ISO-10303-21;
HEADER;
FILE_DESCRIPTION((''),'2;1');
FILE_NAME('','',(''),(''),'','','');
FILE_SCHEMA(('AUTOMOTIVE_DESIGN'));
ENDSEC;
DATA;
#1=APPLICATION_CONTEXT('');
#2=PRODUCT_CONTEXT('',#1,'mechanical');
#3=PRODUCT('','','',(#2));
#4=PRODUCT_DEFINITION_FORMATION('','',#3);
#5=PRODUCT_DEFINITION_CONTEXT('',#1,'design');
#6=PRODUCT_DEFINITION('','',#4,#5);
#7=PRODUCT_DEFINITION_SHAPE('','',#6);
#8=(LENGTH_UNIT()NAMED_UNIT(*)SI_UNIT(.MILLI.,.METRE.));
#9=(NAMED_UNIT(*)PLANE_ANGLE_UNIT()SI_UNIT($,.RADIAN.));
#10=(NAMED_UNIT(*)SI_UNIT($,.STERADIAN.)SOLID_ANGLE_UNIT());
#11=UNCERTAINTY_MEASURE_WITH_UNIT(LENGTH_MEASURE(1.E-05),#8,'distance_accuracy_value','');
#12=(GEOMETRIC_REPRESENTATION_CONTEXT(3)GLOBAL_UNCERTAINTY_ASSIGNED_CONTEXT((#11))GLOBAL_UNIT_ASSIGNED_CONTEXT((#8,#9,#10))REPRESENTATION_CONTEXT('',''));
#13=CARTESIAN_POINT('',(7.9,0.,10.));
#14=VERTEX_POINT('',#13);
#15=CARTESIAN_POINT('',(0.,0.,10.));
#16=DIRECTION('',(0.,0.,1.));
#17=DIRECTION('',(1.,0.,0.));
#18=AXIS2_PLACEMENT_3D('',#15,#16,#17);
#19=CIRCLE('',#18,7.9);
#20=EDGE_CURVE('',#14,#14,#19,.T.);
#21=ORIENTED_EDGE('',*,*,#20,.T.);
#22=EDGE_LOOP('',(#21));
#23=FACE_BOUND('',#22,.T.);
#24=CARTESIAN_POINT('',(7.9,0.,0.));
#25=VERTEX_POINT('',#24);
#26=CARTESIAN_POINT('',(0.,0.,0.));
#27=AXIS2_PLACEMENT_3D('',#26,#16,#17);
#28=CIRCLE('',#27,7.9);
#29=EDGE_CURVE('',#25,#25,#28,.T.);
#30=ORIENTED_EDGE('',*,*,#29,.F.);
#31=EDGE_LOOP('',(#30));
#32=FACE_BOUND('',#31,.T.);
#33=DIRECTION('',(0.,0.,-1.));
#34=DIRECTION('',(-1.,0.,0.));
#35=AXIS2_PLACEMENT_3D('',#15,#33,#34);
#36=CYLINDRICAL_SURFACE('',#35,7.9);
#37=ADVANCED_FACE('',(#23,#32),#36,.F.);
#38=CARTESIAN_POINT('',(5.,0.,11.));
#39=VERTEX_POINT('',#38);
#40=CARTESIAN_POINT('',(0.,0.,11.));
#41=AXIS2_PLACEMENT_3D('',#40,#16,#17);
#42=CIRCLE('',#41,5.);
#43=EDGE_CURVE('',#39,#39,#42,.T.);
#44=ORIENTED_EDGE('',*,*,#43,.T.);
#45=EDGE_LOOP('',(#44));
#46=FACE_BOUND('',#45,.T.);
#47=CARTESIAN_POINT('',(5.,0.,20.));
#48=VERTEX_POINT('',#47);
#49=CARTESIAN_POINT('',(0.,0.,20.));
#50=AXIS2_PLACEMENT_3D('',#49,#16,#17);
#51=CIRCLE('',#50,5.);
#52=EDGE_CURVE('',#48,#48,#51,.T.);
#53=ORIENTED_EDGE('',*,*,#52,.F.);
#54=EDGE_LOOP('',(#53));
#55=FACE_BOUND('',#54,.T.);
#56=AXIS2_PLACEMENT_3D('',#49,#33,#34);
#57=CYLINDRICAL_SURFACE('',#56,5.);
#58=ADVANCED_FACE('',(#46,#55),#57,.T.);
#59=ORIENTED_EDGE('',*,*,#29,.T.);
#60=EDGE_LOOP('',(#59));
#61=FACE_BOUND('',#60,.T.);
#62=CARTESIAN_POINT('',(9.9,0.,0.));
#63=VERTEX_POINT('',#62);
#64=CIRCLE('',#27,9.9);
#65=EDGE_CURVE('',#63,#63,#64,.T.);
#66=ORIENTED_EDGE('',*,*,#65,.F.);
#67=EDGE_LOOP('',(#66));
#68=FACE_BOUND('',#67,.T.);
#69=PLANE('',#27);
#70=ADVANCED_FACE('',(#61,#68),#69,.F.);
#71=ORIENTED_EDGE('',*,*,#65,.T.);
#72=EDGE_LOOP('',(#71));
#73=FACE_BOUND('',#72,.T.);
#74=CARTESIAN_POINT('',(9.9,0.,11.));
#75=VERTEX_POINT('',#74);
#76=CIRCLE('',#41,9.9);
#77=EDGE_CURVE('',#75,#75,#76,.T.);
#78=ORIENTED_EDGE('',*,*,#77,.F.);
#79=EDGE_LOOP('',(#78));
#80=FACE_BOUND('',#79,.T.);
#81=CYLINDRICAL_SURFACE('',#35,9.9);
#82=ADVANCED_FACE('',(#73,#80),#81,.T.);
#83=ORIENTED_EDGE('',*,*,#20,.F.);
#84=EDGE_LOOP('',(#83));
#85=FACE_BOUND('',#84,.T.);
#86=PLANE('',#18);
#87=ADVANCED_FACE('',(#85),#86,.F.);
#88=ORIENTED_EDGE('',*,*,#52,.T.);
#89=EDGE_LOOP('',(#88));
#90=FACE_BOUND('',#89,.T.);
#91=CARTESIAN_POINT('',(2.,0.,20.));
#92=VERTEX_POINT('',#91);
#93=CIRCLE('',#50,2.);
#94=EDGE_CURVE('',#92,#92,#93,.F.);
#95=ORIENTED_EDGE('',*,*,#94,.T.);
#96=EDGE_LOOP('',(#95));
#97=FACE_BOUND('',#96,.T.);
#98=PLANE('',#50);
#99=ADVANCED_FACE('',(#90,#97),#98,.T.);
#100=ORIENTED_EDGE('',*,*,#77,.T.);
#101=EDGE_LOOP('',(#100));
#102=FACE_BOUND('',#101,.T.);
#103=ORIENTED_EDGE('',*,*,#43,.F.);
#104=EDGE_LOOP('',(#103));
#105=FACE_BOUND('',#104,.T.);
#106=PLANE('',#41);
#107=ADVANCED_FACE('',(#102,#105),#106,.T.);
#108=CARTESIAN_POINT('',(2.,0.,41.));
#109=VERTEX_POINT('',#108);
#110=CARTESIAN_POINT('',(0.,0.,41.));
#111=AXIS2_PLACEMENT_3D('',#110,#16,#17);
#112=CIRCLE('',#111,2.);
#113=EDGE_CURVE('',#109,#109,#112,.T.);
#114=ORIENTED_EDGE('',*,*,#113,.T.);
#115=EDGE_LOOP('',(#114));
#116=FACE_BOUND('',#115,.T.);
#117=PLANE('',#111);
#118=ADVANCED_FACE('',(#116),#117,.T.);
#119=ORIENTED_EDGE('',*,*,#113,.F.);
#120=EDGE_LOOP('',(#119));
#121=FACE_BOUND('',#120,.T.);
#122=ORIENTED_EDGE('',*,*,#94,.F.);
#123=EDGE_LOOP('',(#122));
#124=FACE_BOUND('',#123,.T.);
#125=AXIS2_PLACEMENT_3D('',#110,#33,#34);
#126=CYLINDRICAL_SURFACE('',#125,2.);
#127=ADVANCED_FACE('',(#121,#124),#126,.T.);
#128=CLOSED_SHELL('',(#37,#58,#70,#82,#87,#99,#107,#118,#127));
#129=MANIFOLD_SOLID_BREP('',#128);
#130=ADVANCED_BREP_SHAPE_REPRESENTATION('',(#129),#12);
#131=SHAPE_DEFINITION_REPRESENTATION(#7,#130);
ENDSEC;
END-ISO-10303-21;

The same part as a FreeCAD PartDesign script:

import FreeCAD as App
import Part
import Sketcher

V = App.Vector
Q = App.Units.Quantity

doc = App.newDocument("Part")
params = doc.addObject("Spreadsheet::Sheet", "Params")
for row, (alias, value) in enumerate([
    ("sketch1_diameter", "19.8 mm"),
    ("sketch1_diameter2", "15.8 mm"),
    ("pad1_length", "10 mm"),
    ("sketch2_diameter", "19.8 mm"),
    ("pad2_length", "1 mm"),
    ("sketch3_diameter", "10 mm"),
    ("pad3_length", "9 mm"),
    ("sketch4_diameter", "4 mm"),
    ("pad4_length", "30 mm"),
], start=1):
    params.set(f"A{row}", alias)
    params.set(f"B{row}", "=" + value)
    params.setAlias(f"B{row}", alias)

body = doc.addObject("PartDesign::Body", "Body")

sketch1 = body.newObject("Sketcher::SketchObject", "Sketch")
sketch1.AttachmentSupport = (doc.getObject("XY_Plane"), [""])
sketch1.MapMode = "FlatFace"
sketch1.addGeometry([
    Part.Circle(V(0, 0, 0), V(0, 0, 1), 9.9),
    Part.Circle(V(0, 0, 0), V(0, 0, 1), 7.9),
], False)
sketch1.addConstraint([
    Sketcher.Constraint("Coincident", 0, 3, -1, 1),
    Sketcher.Constraint("Coincident", 1, 3, -1, 1),
    Sketcher.Constraint("Diameter", 0, Q("19.8 mm")),
    Sketcher.Constraint("Diameter", 1, Q("15.8 mm")),
])
sketch1.setExpression("Constraints[2]", "Params.sketch1_diameter")
sketch1.setExpression("Constraints[3]", "Params.sketch1_diameter2")
pad1 = body.newObject("PartDesign::Pad", "Pad")
pad1.Profile = sketch1
pad1.setExpression("Length", "Params.pad1_length")

sketch2 = body.newObject("Sketcher::SketchObject", "Sketch001")
sketch2.AttachmentSupport = (doc.getObject("XY_Plane"), [""])
sketch2.MapMode = "FlatFace"
sketch2.AttachmentOffset = App.Placement(V(0, 0, 10), App.Rotation())
sketch2.addGeometry(Part.Circle(V(0, 0, 0), V(0, 0, 1), 9.9), False)
sketch2.addConstraint([
    Sketcher.Constraint("Coincident", 0, 3, -1, 1),
    Sketcher.Constraint("Diameter", 0, Q("19.8 mm")),
])
sketch2.setExpression("Constraints[1]", "Params.sketch2_diameter")
pad2 = body.newObject("PartDesign::Pad", "Pad001")
pad2.Profile = sketch2
pad2.setExpression("Length", "Params.pad2_length")

sketch3 = body.newObject("Sketcher::SketchObject", "Sketch002")
sketch3.AttachmentSupport = (doc.getObject("XY_Plane"), [""])
sketch3.MapMode = "FlatFace"
sketch3.AttachmentOffset = App.Placement(V(0, 0, 11), App.Rotation())
sketch3.addGeometry(Part.Circle(V(0, 0, 0), V(0, 0, 1), 5), False)
sketch3.addConstraint([
    Sketcher.Constraint("Coincident", 0, 3, -1, 1),
    Sketcher.Constraint("Diameter", 0, Q("10 mm")),
])
sketch3.setExpression("Constraints[1]", "Params.sketch3_diameter")
pad3 = body.newObject("PartDesign::Pad", "Pad002")
pad3.Profile = sketch3
pad3.setExpression("Length", "Params.pad3_length")

sketch4 = body.newObject("Sketcher::SketchObject", "Sketch003")
sketch4.AttachmentSupport = (doc.getObject("XY_Plane"), [""])
sketch4.MapMode = "FlatFace"
sketch4.AttachmentOffset = App.Placement(V(0, 0, 11), App.Rotation())
sketch4.addGeometry(Part.Circle(V(0, 0, 0), V(0, 0, 1), 2), False)
sketch4.addConstraint([
    Sketcher.Constraint("Coincident", 0, 3, -1, 1),
    Sketcher.Constraint("Diameter", 0, Q("4 mm")),
])
sketch4.setExpression("Constraints[1]", "Params.sketch4_diameter")
pad4 = body.newObject("PartDesign::Pad", "Pad003")
pad4.Profile = sketch4
pad4.setExpression("Length", "Params.pad4_length")

doc.recompute()
